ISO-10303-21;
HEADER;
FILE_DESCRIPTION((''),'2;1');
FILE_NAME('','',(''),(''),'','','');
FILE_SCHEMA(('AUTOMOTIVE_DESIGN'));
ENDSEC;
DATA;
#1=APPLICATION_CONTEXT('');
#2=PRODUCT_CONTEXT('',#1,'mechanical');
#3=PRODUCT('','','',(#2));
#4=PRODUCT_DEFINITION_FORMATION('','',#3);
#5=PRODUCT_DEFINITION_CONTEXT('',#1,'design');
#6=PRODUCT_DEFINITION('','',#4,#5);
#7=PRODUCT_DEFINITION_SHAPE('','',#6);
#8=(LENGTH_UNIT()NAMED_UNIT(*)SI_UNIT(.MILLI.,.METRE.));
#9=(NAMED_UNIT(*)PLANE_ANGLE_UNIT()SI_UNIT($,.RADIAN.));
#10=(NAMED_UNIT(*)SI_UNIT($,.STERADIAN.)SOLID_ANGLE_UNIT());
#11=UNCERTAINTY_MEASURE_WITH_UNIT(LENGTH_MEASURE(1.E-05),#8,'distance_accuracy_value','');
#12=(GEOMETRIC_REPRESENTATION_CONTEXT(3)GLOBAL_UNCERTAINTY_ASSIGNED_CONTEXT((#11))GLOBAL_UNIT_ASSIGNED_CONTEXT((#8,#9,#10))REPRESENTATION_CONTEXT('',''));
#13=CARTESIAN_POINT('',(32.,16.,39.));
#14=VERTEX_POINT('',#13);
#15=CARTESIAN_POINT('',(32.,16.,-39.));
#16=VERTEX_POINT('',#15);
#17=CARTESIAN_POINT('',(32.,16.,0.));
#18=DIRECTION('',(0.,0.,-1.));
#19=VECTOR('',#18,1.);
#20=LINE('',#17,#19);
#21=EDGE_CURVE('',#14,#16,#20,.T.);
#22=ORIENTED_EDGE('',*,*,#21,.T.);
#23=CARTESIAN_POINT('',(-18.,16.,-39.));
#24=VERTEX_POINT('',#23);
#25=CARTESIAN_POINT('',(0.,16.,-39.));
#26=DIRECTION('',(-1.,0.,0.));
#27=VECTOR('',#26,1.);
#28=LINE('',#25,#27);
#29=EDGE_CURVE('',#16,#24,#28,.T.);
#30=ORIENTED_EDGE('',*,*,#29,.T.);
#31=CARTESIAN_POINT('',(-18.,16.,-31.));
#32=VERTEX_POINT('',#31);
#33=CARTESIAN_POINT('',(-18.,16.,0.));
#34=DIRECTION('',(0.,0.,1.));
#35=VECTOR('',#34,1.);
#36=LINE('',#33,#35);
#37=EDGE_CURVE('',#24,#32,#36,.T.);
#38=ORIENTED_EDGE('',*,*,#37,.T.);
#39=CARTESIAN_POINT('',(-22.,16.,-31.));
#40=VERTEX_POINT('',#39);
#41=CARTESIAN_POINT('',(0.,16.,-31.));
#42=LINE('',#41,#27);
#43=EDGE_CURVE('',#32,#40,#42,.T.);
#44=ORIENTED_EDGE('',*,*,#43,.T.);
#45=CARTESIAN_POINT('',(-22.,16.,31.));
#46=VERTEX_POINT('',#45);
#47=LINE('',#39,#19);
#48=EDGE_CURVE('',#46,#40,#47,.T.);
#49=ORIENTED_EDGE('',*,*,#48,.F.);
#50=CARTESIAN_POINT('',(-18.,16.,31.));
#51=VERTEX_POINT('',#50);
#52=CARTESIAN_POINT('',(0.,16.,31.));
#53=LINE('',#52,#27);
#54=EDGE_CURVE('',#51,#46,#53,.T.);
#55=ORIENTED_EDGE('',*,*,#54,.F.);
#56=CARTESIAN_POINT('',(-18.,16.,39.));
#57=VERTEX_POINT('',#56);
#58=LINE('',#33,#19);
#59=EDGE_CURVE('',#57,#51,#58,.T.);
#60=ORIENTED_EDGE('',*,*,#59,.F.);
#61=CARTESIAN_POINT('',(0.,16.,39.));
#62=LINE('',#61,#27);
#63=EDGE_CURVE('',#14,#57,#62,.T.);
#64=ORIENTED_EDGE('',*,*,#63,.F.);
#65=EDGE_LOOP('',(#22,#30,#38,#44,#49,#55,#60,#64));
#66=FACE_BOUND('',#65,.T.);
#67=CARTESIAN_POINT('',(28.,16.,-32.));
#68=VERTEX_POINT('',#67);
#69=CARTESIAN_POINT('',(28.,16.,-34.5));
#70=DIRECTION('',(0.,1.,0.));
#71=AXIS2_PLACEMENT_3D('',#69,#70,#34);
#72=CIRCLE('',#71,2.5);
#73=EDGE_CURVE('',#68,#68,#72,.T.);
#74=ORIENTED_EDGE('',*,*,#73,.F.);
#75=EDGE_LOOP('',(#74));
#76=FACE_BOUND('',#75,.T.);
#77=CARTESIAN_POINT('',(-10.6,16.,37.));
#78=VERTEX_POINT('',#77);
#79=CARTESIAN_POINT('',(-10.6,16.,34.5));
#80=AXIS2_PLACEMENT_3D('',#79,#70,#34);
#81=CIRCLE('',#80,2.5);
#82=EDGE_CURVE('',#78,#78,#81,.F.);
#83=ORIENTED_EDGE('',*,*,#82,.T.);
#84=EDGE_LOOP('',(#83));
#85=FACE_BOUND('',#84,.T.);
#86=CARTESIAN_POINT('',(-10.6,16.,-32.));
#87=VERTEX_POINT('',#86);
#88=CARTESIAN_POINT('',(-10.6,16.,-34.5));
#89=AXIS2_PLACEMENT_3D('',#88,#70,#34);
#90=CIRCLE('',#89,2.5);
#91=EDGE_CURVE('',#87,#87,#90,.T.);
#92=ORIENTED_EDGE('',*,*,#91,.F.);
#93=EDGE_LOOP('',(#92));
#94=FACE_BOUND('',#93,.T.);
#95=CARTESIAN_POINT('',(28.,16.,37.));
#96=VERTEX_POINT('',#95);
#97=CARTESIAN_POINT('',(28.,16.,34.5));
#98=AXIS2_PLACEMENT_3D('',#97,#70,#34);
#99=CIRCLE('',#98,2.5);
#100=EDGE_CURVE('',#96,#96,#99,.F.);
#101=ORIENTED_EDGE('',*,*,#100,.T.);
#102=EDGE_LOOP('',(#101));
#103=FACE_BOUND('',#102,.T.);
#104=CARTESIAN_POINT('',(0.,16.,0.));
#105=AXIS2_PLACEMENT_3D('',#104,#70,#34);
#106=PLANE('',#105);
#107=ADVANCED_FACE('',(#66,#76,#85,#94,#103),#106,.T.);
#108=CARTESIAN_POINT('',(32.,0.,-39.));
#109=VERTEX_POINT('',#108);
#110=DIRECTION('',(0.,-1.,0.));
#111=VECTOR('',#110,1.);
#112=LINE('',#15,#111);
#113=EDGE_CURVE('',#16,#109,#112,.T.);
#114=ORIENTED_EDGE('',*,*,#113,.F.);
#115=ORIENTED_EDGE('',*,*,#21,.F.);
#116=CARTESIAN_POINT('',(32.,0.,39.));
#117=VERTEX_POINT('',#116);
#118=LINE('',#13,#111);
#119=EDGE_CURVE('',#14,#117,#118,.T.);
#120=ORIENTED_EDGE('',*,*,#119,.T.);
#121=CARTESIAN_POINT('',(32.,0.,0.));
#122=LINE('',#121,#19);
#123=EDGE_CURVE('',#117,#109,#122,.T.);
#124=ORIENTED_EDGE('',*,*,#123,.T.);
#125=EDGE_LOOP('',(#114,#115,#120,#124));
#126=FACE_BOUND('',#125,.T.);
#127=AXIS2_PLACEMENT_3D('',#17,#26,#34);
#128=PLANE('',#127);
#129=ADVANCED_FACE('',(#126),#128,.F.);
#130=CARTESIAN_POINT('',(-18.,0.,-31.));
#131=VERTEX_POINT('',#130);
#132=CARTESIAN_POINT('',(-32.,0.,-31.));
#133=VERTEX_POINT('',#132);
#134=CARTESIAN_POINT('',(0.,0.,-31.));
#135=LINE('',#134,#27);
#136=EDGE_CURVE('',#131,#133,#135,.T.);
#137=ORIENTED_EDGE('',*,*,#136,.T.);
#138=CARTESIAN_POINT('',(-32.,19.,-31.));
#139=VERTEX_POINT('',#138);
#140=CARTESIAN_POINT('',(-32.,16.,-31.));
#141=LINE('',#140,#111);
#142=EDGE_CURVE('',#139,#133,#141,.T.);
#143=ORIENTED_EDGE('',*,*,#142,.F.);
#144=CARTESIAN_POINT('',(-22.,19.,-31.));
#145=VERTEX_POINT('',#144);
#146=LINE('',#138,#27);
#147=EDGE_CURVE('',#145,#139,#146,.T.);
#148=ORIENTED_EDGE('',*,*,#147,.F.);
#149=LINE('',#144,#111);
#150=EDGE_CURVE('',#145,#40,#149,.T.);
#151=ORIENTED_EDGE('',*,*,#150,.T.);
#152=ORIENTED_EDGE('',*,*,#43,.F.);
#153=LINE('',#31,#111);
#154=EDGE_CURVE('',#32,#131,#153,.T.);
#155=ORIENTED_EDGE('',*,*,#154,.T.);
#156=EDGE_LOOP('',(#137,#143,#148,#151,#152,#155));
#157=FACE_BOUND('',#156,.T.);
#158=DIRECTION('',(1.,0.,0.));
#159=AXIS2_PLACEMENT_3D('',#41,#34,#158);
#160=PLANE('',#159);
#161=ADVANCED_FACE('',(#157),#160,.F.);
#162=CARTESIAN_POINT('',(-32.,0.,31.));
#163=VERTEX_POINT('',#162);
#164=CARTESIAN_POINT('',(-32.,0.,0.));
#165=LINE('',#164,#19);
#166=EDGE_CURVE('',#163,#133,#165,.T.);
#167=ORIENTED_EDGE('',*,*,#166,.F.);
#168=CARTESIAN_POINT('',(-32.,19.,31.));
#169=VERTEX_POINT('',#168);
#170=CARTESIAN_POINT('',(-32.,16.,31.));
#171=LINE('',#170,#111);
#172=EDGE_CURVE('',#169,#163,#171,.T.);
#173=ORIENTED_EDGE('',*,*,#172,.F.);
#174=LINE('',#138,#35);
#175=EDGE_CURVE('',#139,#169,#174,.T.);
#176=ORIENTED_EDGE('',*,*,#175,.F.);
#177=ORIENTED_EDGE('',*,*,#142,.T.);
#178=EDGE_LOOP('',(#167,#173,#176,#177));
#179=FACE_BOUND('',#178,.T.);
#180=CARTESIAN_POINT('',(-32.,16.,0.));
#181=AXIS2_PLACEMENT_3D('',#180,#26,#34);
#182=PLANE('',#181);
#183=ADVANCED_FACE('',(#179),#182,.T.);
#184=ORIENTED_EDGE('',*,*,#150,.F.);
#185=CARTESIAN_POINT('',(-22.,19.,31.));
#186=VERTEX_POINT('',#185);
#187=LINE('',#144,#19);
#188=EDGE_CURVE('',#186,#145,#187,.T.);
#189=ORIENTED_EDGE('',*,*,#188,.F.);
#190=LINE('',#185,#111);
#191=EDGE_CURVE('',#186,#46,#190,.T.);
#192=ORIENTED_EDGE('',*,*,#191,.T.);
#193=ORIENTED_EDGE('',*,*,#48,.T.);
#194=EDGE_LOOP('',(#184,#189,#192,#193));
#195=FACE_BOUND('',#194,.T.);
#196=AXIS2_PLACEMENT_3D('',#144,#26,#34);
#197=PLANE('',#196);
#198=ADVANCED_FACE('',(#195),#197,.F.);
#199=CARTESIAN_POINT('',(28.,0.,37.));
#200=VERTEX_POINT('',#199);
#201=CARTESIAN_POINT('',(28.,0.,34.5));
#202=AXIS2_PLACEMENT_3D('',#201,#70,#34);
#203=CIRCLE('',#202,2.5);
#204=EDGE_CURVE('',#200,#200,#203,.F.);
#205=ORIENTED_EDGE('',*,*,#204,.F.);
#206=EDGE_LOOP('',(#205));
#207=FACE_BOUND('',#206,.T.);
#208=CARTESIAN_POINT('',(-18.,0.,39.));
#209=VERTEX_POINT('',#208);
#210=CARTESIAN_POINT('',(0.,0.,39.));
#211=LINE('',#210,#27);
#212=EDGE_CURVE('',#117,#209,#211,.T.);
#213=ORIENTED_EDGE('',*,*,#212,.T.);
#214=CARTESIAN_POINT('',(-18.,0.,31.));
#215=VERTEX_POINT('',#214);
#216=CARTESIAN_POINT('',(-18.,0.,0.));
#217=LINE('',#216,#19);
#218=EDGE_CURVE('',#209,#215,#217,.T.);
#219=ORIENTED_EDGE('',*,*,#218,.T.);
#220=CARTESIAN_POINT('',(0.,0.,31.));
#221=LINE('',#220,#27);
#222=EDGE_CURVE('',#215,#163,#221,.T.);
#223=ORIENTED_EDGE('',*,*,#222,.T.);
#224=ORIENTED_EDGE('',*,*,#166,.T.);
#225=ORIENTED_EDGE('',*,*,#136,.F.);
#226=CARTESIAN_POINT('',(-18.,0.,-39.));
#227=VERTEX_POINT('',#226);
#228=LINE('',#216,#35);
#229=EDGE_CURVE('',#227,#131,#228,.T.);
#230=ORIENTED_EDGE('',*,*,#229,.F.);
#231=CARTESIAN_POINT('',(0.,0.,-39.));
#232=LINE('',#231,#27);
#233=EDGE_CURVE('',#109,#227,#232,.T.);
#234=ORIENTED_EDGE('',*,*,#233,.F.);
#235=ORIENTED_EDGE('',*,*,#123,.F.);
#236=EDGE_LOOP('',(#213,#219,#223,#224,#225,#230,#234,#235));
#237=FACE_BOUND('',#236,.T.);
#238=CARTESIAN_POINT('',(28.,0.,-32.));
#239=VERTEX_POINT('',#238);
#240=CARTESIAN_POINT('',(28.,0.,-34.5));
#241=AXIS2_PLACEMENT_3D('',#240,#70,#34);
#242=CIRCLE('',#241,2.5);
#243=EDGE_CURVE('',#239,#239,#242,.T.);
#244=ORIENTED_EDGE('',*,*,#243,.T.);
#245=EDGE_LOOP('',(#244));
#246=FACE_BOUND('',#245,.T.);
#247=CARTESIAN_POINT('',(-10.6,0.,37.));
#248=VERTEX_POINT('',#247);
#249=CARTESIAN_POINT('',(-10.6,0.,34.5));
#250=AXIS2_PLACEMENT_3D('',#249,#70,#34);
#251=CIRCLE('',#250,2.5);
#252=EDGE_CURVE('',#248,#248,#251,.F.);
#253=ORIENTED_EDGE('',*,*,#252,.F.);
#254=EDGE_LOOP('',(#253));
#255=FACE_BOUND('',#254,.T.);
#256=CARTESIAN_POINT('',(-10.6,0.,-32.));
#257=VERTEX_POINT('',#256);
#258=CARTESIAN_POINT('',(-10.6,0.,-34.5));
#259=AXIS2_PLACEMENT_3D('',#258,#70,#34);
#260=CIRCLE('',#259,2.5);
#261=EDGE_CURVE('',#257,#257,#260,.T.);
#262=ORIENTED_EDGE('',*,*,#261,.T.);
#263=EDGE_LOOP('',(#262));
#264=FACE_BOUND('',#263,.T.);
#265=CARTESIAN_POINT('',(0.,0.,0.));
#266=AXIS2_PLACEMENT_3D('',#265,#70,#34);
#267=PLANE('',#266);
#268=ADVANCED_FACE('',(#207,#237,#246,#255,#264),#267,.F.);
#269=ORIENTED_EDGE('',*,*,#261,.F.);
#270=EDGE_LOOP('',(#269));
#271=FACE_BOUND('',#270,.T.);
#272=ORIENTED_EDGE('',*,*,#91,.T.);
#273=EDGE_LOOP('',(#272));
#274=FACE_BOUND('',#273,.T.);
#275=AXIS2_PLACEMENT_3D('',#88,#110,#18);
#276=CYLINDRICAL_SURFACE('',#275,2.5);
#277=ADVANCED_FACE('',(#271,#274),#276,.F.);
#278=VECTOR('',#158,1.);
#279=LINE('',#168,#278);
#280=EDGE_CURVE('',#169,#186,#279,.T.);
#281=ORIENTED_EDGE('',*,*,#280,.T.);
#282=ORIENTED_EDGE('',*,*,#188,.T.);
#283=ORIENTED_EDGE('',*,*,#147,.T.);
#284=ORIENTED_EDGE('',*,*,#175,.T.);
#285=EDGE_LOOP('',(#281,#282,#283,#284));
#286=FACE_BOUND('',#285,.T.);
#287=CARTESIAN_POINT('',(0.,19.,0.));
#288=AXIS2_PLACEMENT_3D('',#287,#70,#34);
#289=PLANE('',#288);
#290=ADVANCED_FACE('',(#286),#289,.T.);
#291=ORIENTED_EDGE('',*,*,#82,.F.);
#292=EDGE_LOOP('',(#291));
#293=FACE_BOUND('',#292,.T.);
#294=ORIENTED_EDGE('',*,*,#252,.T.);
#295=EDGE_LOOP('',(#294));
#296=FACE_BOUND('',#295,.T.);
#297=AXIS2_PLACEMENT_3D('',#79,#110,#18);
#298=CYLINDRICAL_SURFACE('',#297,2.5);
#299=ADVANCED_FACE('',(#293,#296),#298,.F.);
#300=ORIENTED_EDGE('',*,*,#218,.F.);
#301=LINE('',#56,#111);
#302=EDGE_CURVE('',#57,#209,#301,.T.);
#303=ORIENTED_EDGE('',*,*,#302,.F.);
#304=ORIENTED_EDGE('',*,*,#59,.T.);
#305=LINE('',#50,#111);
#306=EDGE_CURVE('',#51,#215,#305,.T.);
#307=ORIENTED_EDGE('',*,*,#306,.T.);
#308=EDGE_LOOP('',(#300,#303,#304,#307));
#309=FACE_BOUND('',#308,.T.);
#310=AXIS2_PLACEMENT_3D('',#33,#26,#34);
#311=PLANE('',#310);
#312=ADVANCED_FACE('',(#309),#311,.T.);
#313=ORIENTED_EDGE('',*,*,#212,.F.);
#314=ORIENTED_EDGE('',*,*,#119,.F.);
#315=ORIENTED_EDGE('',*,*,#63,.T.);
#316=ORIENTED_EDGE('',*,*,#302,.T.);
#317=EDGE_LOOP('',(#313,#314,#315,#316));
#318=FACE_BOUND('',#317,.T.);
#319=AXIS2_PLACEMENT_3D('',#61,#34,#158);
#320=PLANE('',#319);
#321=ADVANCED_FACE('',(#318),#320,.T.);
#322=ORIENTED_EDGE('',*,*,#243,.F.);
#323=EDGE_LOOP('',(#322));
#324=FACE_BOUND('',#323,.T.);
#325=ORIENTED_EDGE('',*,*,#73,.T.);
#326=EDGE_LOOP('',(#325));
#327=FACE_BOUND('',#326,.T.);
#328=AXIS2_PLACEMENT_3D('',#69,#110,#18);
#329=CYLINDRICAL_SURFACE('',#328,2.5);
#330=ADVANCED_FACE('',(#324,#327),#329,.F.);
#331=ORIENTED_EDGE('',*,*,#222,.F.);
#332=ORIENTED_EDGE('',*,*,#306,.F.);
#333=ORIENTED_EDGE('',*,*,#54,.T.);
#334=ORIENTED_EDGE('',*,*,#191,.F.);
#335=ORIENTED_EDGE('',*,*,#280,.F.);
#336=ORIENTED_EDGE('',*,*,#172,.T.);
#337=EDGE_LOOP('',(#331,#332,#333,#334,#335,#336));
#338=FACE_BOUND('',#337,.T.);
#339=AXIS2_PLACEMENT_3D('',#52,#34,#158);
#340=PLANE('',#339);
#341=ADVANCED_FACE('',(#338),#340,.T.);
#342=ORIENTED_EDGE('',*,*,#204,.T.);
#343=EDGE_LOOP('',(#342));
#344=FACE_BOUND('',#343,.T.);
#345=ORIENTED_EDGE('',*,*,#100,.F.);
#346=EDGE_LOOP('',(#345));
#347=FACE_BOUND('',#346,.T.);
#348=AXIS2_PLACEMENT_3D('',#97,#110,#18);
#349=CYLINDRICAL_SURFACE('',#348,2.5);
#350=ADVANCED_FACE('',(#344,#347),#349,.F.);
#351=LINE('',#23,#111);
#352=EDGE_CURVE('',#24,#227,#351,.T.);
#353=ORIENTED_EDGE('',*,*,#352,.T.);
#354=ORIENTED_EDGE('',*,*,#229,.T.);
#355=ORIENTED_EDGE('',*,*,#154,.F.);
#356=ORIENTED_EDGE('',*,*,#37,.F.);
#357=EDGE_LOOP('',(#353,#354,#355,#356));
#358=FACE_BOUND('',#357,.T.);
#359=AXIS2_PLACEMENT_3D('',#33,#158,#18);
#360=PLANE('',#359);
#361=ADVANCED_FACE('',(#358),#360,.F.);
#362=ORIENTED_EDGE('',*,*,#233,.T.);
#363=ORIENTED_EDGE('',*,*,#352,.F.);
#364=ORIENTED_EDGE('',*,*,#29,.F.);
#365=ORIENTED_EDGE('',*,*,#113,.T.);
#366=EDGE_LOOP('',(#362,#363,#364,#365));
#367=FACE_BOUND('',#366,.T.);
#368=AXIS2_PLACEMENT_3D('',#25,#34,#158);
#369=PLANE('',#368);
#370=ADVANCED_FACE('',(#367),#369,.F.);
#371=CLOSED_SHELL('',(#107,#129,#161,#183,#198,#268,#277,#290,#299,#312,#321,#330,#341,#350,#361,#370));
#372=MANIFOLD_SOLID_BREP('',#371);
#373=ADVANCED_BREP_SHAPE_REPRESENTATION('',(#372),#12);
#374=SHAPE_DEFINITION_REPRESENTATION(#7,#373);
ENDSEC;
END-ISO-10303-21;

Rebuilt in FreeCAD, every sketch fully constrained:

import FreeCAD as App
import Part
import Sketcher
Q = App.Units.Quantity


def add_polygon(sketch, points):
    """Adds a closed chain of lines whose ends are joined by coincident constraints."""
    first, n = sketch.GeometryCount, len(points)
    for a, b in zip(points, points[1:] + points[:1]):
        sketch.addGeometry(Part.LineSegment(App.Vector(*a, 0), App.Vector(*b, 0)), False)
    for i in range(n):
        sketch.addConstraint(Sketcher.Constraint("Coincident", first + i, 2, first + (i + 1) % n, 1))

doc = App.newDocument("Part")
body = doc.addObject("PartDesign::Body", "Body")

# Sketch on XZ plane
sketch1 = doc.addObject("Sketcher::SketchObject", "Sketch")
body.addObject(sketch1)
sketch1.AttachmentSupport = (doc.XZ_Plane, [""])
sketch1.MapMode = "FlatFace"
add_polygon(sketch1, [(-18, -39), (-18, -31), (-32, -31), (-32, 31), (-18, 31), (-18, 39), (32, 39), (32, -39)])  # lines 0-7
sketch1.addGeometry(Part.Circle(App.Vector(-10.6, 34.5, 0), App.Vector(0, 0, 1), 2.5), False)  # 8
sketch1.addGeometry(Part.Circle(App.Vector(28, 34.5, 0), App.Vector(0, 0, 1), 2.5), False)  # 9
sketch1.addGeometry(Part.Circle(App.Vector(-10.6, -34.5, 0), App.Vector(0, 0, 1), 2.5), False)  # 10
sketch1.addGeometry(Part.Circle(App.Vector(28, -34.5, 0), App.Vector(0, 0, 1), 2.5), False)  # 11
sketch1.addConstraint([
    Sketcher.Constraint("Vertical", 0),
    Sketcher.Constraint("Horizontal", 1),
    Sketcher.Constraint("Vertical", 2),
    Sketcher.Constraint("Horizontal", 3),
    Sketcher.Constraint("Vertical", 4),
    Sketcher.Constraint("Horizontal", 5),
    Sketcher.Constraint("Vertical", 6),
    Sketcher.Constraint("Horizontal", 7),
    Sketcher.Constraint("Equal", 8, 9),
    Sketcher.Constraint("Equal", 9, 10),
    Sketcher.Constraint("Equal", 10, 11),
    Sketcher.Constraint("Symmetric", 8, 3, 10, 3, -1),
    Sketcher.Constraint("Symmetric", 9, 3, 11, 3, -1),
    Sketcher.Constraint("Symmetric", 0, 2, 3, 2, -1),
    Sketcher.Constraint("Horizontal", 8, 3, 9, 3),
    Sketcher.Constraint("Equal", 0, 4),
    Sketcher.Constraint("Diameter", 8, Q("5 mm")),
    Sketcher.Constraint("DistanceX", 1, 2, 1, 1, Q("14 mm")),
    Sketcher.Constraint("DistanceX", 5, 1, 5, 2, Q("50 mm")),
    Sketcher.Constraint("DistanceY", 0, 1, 0, 2, Q("8 mm")),
    Sketcher.Constraint("DistanceY", 2, 1, 2, 2, Q("62 mm")),
    Sketcher.Constraint("DistanceX", -1, 1, 9, 3, Q("28 mm")),
    Sketcher.Constraint("DistanceX", 0, 2, -1, 1, Q("18 mm")),
    Sketcher.Constraint("DistanceY", 10, 3, 8, 3, Q("69 mm")),
    Sketcher.Constraint("DistanceX", 8, 3, -1, 1, Q("10.6 mm")),
])
pad1 = doc.addObject("PartDesign::Pad", "Pad")
body.addObject(pad1)
pad1.Profile = sketch1
pad1.Length = 16
pad1.Reversed = True

# Sketch on XZ plane
sketch2 = doc.addObject("Sketcher::SketchObject", "Sketch001")
body.addObject(sketch2)
sketch2.AttachmentSupport = (doc.XZ_Plane, [""])
sketch2.MapMode = "FlatFace"
sketch2.AttachmentOffset = App.Placement(App.Vector(0, 0, -16), App.Rotation())
add_polygon(sketch2, [(-32, -31), (-32, 31), (-22, 31), (-22, -31)])  # lines 0-3
sketch2.addConstraint([
    Sketcher.Constraint("Vertical", 0),
    Sketcher.Constraint("Horizontal", 1),
    Sketcher.Constraint("Vertical", 2),
    Sketcher.Constraint("Horizontal", 3),
    Sketcher.Constraint("DistanceX", 1, 1, 1, 2, Q("10 mm")),
    Sketcher.Constraint("DistanceY", 0, 1, 0, 2, Q("62 mm")),
    Sketcher.Constraint("DistanceX", 0, 2, -1, 1, Q("32 mm")),
    Sketcher.Constraint("DistanceY", -1, 1, 0, 2, Q("31 mm")),
])
pad2 = doc.addObject("PartDesign::Pad", "Pad001")
body.addObject(pad2)
pad2.Profile = sketch2
pad2.Length = 3
pad2.Reversed = True

doc.recompute()
